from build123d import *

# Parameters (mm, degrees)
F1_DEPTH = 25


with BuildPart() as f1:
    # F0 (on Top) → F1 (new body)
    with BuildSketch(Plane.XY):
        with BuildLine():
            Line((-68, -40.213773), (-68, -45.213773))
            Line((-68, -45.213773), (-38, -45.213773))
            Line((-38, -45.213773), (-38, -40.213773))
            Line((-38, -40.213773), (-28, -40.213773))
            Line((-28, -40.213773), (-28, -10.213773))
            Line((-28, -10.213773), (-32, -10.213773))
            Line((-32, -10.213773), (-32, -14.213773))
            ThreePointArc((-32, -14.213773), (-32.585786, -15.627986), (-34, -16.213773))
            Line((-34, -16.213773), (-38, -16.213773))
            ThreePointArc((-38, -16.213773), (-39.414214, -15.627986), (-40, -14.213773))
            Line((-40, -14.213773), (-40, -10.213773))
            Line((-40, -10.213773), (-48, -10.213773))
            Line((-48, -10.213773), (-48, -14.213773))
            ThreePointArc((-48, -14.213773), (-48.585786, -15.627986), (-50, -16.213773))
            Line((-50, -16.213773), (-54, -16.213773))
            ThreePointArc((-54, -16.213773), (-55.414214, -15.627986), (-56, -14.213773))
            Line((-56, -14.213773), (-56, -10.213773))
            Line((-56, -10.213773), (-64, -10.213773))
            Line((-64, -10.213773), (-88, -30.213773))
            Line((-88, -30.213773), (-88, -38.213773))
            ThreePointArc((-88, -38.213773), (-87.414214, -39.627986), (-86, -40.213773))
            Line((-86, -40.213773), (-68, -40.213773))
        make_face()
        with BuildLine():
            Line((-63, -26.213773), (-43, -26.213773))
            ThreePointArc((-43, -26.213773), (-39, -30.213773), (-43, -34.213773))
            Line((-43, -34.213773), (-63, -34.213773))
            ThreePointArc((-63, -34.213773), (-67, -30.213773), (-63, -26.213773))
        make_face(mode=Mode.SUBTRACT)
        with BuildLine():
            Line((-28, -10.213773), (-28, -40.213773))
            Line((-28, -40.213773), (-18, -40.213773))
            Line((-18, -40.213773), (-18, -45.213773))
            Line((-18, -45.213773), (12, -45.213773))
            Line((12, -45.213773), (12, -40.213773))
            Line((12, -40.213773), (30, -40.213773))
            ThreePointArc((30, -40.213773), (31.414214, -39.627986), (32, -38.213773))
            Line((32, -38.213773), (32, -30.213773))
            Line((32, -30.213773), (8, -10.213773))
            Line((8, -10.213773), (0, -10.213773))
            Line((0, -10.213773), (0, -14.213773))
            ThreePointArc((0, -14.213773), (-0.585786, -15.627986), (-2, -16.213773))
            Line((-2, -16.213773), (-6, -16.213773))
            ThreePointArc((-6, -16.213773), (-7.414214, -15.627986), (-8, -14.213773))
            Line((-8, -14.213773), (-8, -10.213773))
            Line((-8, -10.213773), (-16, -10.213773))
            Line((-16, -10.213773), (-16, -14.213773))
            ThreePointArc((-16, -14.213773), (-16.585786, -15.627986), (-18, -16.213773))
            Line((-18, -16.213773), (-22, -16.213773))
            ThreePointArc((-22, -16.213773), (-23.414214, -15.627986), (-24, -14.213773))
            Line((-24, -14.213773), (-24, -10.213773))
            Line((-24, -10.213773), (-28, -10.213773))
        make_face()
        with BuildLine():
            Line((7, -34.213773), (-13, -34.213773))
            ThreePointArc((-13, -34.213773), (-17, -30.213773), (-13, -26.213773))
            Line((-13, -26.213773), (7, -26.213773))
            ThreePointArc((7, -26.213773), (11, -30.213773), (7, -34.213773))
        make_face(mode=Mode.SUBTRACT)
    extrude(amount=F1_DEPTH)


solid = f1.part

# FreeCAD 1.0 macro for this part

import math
import FreeCAD as App
import Part
import Sketcher
from FreeCAD import Vector

doc = App.newDocument("Part")
body = doc.addObject("PartDesign::Body", "Body")

sketch1 = body.newObject("Sketcher::SketchObject", "Sketch")
sketch1.AttachmentSupport = (doc.getObject("XY_Plane"), [""])
sketch1.MapMode = "FlatFace"
sketch1.addGeometry(Part.LineSegment(Vector(-68, -40.2, 0), Vector(-68, -45.2, 0)), False)
sketch1.addGeometry(Part.LineSegment(Vector(-68, -45.2, 0), Vector(-38, -45.2, 0)), False)
sketch1.addGeometry(Part.LineSegment(Vector(-38, -45.2, 0), Vector(-38, -40.2, 0)), False)
sketch1.addGeometry(Part.LineSegment(Vector(-38, -40.2, 0), Vector(-18, -40.2, 0)), False)
sketch1.addGeometry(Part.LineSegment(Vector(-18, -40.2, 0), Vector(-18, -45.2, 0)), False)
sketch1.addGeometry(Part.LineSegment(Vector(-18, -45.2, 0), Vector(12, -45.2, 0)), False)
sketch1.addGeometry(Part.LineSegment(Vector(12, -45.2, 0), Vector(12, -40.2, 0)), False)
sketch1.addGeometry(Part.LineSegment(Vector(12, -40.2, 0), Vector(30, -40.2, 0)), False)
sketch1.addGeometry(Part.ArcOfCircle(Part.Circle(Vector(30, -38.2, 0), Vector(0, 0, 1), 2), math.radians(-90), math.radians(0)), False)
sketch1.addGeometry(Part.LineSegment(Vector(32, -38.2, 0), Vector(32, -30.2, 0)), False)
sketch1.addGeometry(Part.LineSegment(Vector(32, -30.2, 0), Vector(8, -10.2, 0)), False)
sketch1.addGeometry(Part.LineSegment(Vector(8, -10.2, 0), Vector(0, -10.2, 0)), False)
sketch1.addGeometry(Part.LineSegment(Vector(0, -10.2, 0), Vector(0, -14.2, 0)), False)
sketch1.addGeometry(Part.ArcOfCircle(Part.Circle(Vector(-2, -14.2, 0), Vector(0, 0, 1), 2), math.radians(-90), math.radians(0)), False)
sketch1.addGeometry(Part.LineSegment(Vector(-2, -16.2, 0), Vector(-6, -16.2, 0)), False)
sketch1.addGeometry(Part.ArcOfCircle(Part.Circle(Vector(-6, -14.2, 0), Vector(0, 0, 1), 2), math.radians(-180), math.radians(-90)), False)
sketch1.addGeometry(Part.LineSegment(Vector(-8, -14.2, 0), Vector(-8, -10.2, 0)), False)
sketch1.addGeometry(Part.LineSegment(Vector(-8, -10.2, 0), Vector(-16, -10.2, 0)), False)
sketch1.addGeometry(Part.LineSegment(Vector(-16, -10.2, 0), Vector(-16, -14.2, 0)), False)
sketch1.addGeometry(Part.ArcOfCircle(Part.Circle(Vector(-18, -14.2, 0), Vector(0, 0, 1), 2), math.radians(-90), math.radians(0)), False)
sketch1.addGeometry(Part.LineSegment(Vector(-18, -16.2, 0), Vector(-22, -16.2, 0)), False)
sketch1.addGeometry(Part.ArcOfCircle(Part.Circle(Vector(-22, -14.2, 0), Vector(0, 0, 1), 2), math.radians(-180), math.radians(-90)), False)
sketch1.addGeometry(Part.LineSegment(Vector(-24, -14.2, 0), Vector(-24, -10.2, 0)), False)
sketch1.addGeometry(Part.LineSegment(Vector(-24, -10.2, 0), Vector(-32, -10.2, 0)), False)
sketch1.addGeometry(Part.LineSegment(Vector(-32, -10.2, 0), Vector(-32, -14.2, 0)), False)
sketch1.addGeometry(Part.ArcOfCircle(Part.Circle(Vector(-34, -14.2, 0), Vector(0, 0, 1), 2), math.radians(-90), math.radians(0)), False)
sketch1.addGeometry(Part.LineSegment(Vector(-34, -16.2, 0), Vector(-38, -16.2, 0)), False)
sketch1.addGeometry(Part.ArcOfCircle(Part.Circle(Vector(-38, -14.2, 0), Vector(0, 0, 1), 2), math.radians(-180), math.radians(-90)), False)
sketch1.addGeometry(Part.LineSegment(Vector(-40, -14.2, 0), Vector(-40, -10.2, 0)), False)
sketch1.addGeometry(Part.LineSegment(Vector(-40, -10.2, 0), Vector(-48, -10.2, 0)), False)
sketch1.addGeometry(Part.LineSegment(Vector(-48, -10.2, 0), Vector(-48, -14.2, 0)), False)
sketch1.addGeometry(Part.ArcOfCircle(Part.Circle(Vector(-50, -14.2, 0), Vector(0, 0, 1), 2), math.radians(-90), math.radians(0)), False)
sketch1.addGeometry(Part.LineSegment(Vector(-50, -16.2, 0), Vector(-54, -16.2, 0)), False)
sketch1.addGeometry(Part.ArcOfCircle(Part.Circle(Vector(-54, -14.2, 0), Vector(0, 0, 1), 2), math.radians(-180), math.radians(-90)), False)
sketch1.addGeometry(Part.LineSegment(Vector(-56, -14.2, 0), Vector(-56, -10.2, 0)), False)
sketch1.addGeometry(Part.LineSegment(Vector(-56, -10.2, 0), Vector(-64, -10.2, 0)), False)
sketch1.addGeometry(Part.LineSegment(Vector(-64, -10.2, 0), Vector(-88, -30.2, 0)), False)
sketch1.addGeometry(Part.LineSegment(Vector(-88, -30.2, 0), Vector(-88, -38.2, 0)), False)
sketch1.addGeometry(Part.ArcOfCircle(Part.Circle(Vector(-86, -38.2, 0), Vector(0, 0, 1), 2), math.radians(-180), math.radians(-90)), False)
sketch1.addGeometry(Part.LineSegment(Vector(-86, -40.2, 0), Vector(-68, -40.2, 0)), False)
sketch1.addGeometry(Part.ArcOfCircle(Part.Circle(Vector(-63, -30.2, 0), Vector(0, 0, 1), 4), math.radians(90), math.radians(270)), False)
sketch1.addGeometry(Part.LineSegment(Vector(-63, -26.2, 0), Vector(-43, -26.2, 0)), False)
sketch1.addGeometry(Part.ArcOfCircle(Part.Circle(Vector(-43, -30.2, 0), Vector(0, 0, 1), 4), math.radians(-90), math.radians(90)), False)
sketch1.addGeometry(Part.LineSegment(Vector(-43, -34.2, 0), Vector(-63, -34.2, 0)), False)
sketch1.addGeometry(Part.ArcOfCircle(Part.Circle(Vector(7, -30.2, 0), Vector(0, 0, 1), 4), math.radians(-90), math.radians(90)), False)
sketch1.addGeometry(Part.LineSegment(Vector(7, -34.2, 0), Vector(-13, -34.2, 0)), False)
sketch1.addGeometry(Part.ArcOfCircle(Part.Circle(Vector(-13, -30.2, 0), Vector(0, 0, 1), 4), math.radians(90), math.radians(270)), False)
sketch1.addGeometry(Part.LineSegment(Vector(-13, -26.2, 0), Vector(7, -26.2, 0)), False)
sketch1.addConstraint(Sketcher.Constraint("Coincident", 0, 2, 1, 1))
sketch1.addConstraint(Sketcher.Constraint("Coincident", 1, 2, 2, 1))
sketch1.addConstraint(Sketcher.Constraint("Coincident", 2, 2, 3, 1))
sketch1.addConstraint(Sketcher.Constraint("Coincident", 3, 2, 4, 1))
sketch1.addConstraint(Sketcher.Constraint("Coincident", 4, 2, 5, 1))
sketch1.addConstraint(Sketcher.Constraint("Coincident", 5, 2, 6, 1))
sketch1.addConstraint(Sketcher.Constraint("Coincident", 6, 2, 7, 1))
sketch1.addConstraint(Sketcher.Constraint("Tangent", 7, 2, 8, 1))
sketch1.addConstraint(Sketcher.Constraint("Tangent", 8, 2, 9, 1))
sketch1.addConstraint(Sketcher.Constraint("Coincident", 9, 2, 10, 1))
sketch1.addConstraint(Sketcher.Constraint("Coincident", 10, 2, 11, 1))
sketch1.addConstraint(Sketcher.Constraint("Coincident", 11, 2, 12, 1))
sketch1.addConstraint(Sketcher.Constraint("Tangent", 12, 2, 13, 2))
sketch1.addConstraint(Sketcher.Constraint("Tangent", 13, 1, 14, 1))
sketch1.addConstraint(Sketcher.Constraint("Tangent", 14, 2, 15, 2))
sketch1.addConstraint(Sketcher.Constraint("Tangent", 15, 1, 16, 1))
sketch1.addConstraint(Sketcher.Constraint("Coincident", 16, 2, 17, 1))
sketch1.addConstraint(Sketcher.Constraint("Coincident", 17, 2, 18, 1))
sketch1.addConstraint(Sketcher.Constraint("Tangent", 18, 2, 19, 2))
sketch1.addConstraint(Sketcher.Constraint("Tangent", 19, 1, 20, 1))
sketch1.addConstraint(Sketcher.Constraint("Tangent", 20, 2, 21, 2))
sketch1.addConstraint(Sketcher.Constraint("Tangent", 21, 1, 22, 1))
sketch1.addConstraint(Sketcher.Constraint("Coincident", 22, 2, 23, 1))
sketch1.addConstraint(Sketcher.Constraint("Coincident", 23, 2, 24, 1))
sketch1.addConstraint(Sketcher.Constraint("Tangent", 24, 2, 25, 2))
sketch1.addConstraint(Sketcher.Constraint("Tangent", 25, 1, 26, 1))
sketch1.addConstraint(Sketcher.Constraint("Tangent", 26, 2, 27, 2))
sketch1.addConstraint(Sketcher.Constraint("Tangent", 27, 1, 28, 1))
sketch1.addConstraint(Sketcher.Constraint("Coincident", 28, 2, 29, 1))
sketch1.addConstraint(Sketcher.Constraint("Coincident", 29, 2, 30, 1))
sketch1.addConstraint(Sketcher.Constraint("Tangent", 30, 2, 31, 2))
sketch1.addConstraint(Sketcher.Constraint("Tangent", 31, 1, 32, 1))
sketch1.addConstraint(Sketcher.Constraint("Tangent", 32, 2, 33, 2))
sketch1.addConstraint(Sketcher.Constraint("Tangent", 33, 1, 34, 1))
sketch1.addConstraint(Sketcher.Constraint("Coincident", 34, 2, 35, 1))
sketch1.addConstraint(Sketcher.Constraint("Coincident", 35, 2, 36, 1))
sketch1.addConstraint(Sketcher.Constraint("Coincident", 36, 2, 37, 1))
sketch1.addConstraint(Sketcher.Constraint("Tangent", 37, 2, 38, 1))
sketch1.addConstraint(Sketcher.Constraint("Tangent", 38, 2, 39, 1))
sketch1.addConstraint(Sketcher.Constraint("Coincident", 39, 2, 0, 1))
sketch1.addConstraint(Sketcher.Constraint("Tangent", 40, 1, 41, 1))
sketch1.addConstraint(Sketcher.Constraint("Tangent", 41, 2, 42, 2))
sketch1.addConstraint(Sketcher.Constraint("Tangent", 42, 1, 43, 1))
sketch1.addConstraint(Sketcher.Constraint("Tangent", 43, 2, 40, 2))
sketch1.addConstraint(Sketcher.Constraint("Tangent", 44, 1, 45, 1))
sketch1.addConstraint(Sketcher.Constraint("Tangent", 45, 2, 46, 2))
sketch1.addConstraint(Sketcher.Constraint("Tangent", 46, 1, 47, 1))
sketch1.addConstraint(Sketcher.Constraint("Tangent", 47, 2, 44, 2))
sketch1.addConstraint(Sketcher.Constraint("Vertical", 0))
sketch1.addConstraint(Sketcher.Constraint("Horizontal", 1))
sketch1.addConstraint(Sketcher.Constraint("Vertical", 2))
sketch1.addConstraint(Sketcher.Constraint("Horizontal", 3))
sketch1.addConstraint(Sketcher.Constraint("Vertical", 4))
sketch1.addConstraint(Sketcher.Constraint("Horizontal", 5))
sketch1.addConstraint(Sketcher.Constraint("Vertical", 6))
sketch1.addConstraint(Sketcher.Constraint("Horizontal", 7))
sketch1.addConstraint(Sketcher.Constraint("Vertical", 9))
sketch1.addConstraint(Sketcher.Constraint("Horizontal", 11))
sketch1.addConstraint(Sketcher.Constraint("Vertical", 12))
sketch1.addConstraint(Sketcher.Constraint("Horizontal", 14))
sketch1.addConstraint(Sketcher.Constraint("Vertical", 16))
sketch1.addConstraint(Sketcher.Constraint("Horizontal", 17))
sketch1.addConstraint(Sketcher.Constraint("Vertical", 18))
sketch1.addConstraint(Sketcher.Constraint("Horizontal", 20))
sketch1.addConstraint(Sketcher.Constraint("Vertical", 22))
sketch1.addConstraint(Sketcher.Constraint("Horizontal", 23))
sketch1.addConstraint(Sketcher.Constraint("Vertical", 24))
sketch1.addConstraint(Sketcher.Constraint("Horizontal", 26))
sketch1.addConstraint(Sketcher.Constraint("Vertical", 28))
sketch1.addConstraint(Sketcher.Constraint("Horizontal", 29))
sketch1.addConstraint(Sketcher.Constraint("Vertical", 30))
sketch1.addConstraint(Sketcher.Constraint("Horizontal", 32))
sketch1.addConstraint(Sketcher.Constraint("Vertical", 34))
sketch1.addConstraint(Sketcher.Constraint("Horizontal", 35))
sketch1.addConstraint(Sketcher.Constraint("Vertical", 37))
sketch1.addConstraint(Sketcher.Constraint("Horizontal", 39))
sketch1.addConstraint(Sketcher.Constraint("Horizontal", 41))
sketch1.addConstraint(Sketcher.Constraint("Horizontal", 43))
sketch1.addConstraint(Sketcher.Constraint("Horizontal", 45))
sketch1.addConstraint(Sketcher.Constraint("Horizontal", 47))
sketch1.addConstraint(Sketcher.Constraint("Equal", 8, 13))
sketch1.addConstraint(Sketcher.Constraint("Equal", 13, 15))
sketch1.addConstraint(Sketcher.Constraint("Equal", 15, 19))
sketch1.addConstraint(Sketcher.Constraint("Equal", 19, 21))
sketch1.addConstraint(Sketcher.Constraint("Equal", 21, 25))
sketch1.addConstraint(Sketcher.Constraint("Equal", 25, 27))
sketch1.addConstraint(Sketcher.Constraint("Equal", 27, 31))
sketch1.addConstraint(Sketcher.Constraint("Equal", 31, 33))
sketch1.addConstraint(Sketcher.Constraint("Equal", 33, 38))
sketch1.addConstraint(Sketcher.Constraint("Equal", 42, 44))
sketch1.addConstraint(Sketcher.Constraint("Symmetric", 10, 2, 16, 2, -2))
sketch1.addConstraint(Sketcher.Constraint("PointOnObject", 11, 2, -2))
sketch1.addConstraint(Sketcher.Constraint("Horizontal", 15, 3, 19, 3))
sketch1.addConstraint(Sketcher.Constraint("Horizontal", 21, 3, 25, 3))
sketch1.addConstraint(Sketcher.Constraint("Horizontal", 27, 3, 31, 3))
sketch1.addConstraint(Sketcher.Constraint("Horizontal", 8, 3, 38, 3))
sketch1.addConstraint(Sketcher.Constraint("Horizontal", 42, 3, 44, 3))
sketch1.addConstraint(Sketcher.Constraint("Horizontal", 1, 2, 4, 2))
sketch1.addConstraint(Sketcher.Constraint("Horizontal", 3, 2, 6, 2))
sketch1.addConstraint(Sketcher.Constraint("Horizontal", 46, 3, 9, 2))
sketch1.addConstraint(Sketcher.Constraint("Horizontal", 17, 2, 22, 2))
sketch1.addConstraint(Sketcher.Constraint("Horizontal", 23, 2, 28, 2))
sketch1.addConstraint(Sketcher.Constraint("Horizontal", 29, 2, 34, 2))
sketch1.addConstraint(Sketcher.Constraint("Horizontal", 9, 2, 36, 2))
sketch1.addConstraint(Sketcher.Constraint("Vertical", 27, 3, 1, 2))
sketch1.addConstraint(Sketcher.Constraint("Vertical", 19, 3, 3, 2))
sketch1.addConstraint(Sketcher.Constraint("Equal", 1, 5))
sketch1.addConstraint(Sketcher.Constraint("Equal", 11, 17))
sketch1.addConstraint(Sketcher.Constraint("Equal", 14, 20))
sketch1.addConstraint(Sketcher.Constraint("Equal", 17, 23))
sketch1.addConstraint(Sketcher.Constraint("Equal", 20, 26))
sketch1.addConstraint(Sketcher.Constraint("Equal", 23, 29))
sketch1.addConstraint(Sketcher.Constraint("Equal", 26, 32))
sketch1.addConstraint(Sketcher.Constraint("Equal", 29, 35))
sketch1.addConstraint(Sketcher.Constraint("Equal", 7, 39))
sketch1.addConstraint(Sketcher.Constraint("Equal", 3, 41))
sketch1.addConstraint(Sketcher.Constraint("Equal", 43, 45))
sketch1.addConstraint(Sketcher.Constraint("Equal", 35, 9))
sketch1.addConstraint(Sketcher.Constraint("Equal", 32, 12))
sketch1.addConstraint(Sketcher.Constraint("Radius", 8, 2.0))
sketch1.addConstraint(Sketcher.Constraint("Radius", 40, 4.0))
sketch1.addConstraint(Sketcher.Constraint("DistanceX", 1, 1, 1, 2, 30.0))
sketch1.addConstraint(Sketcher.Constraint("DistanceX", 3, 1, 3, 2, 20.0))
sketch1.addConstraint(Sketcher.Constraint("DistanceX", 7, 1, 7, 2, 18.0))
sketch1.addConstraint(Sketcher.Constraint("DistanceY", 0, 2, 0, 1, 5.0))
sketch1.addConstraint(Sketcher.Constraint("DistanceX", 40, 3, -1, 1, 63.0))
sketch1.addConstraint(Sketcher.Constraint("DistanceX", -1, 1, 44, 3, 7.0))
sketch1.addConstraint(Sketcher.Constraint("Distance", 10, 31.240999))
sketch1.addConstraint(Sketcher.Constraint("DistanceY", 8, 3, -1, 1, 38.213773))
pad1 = body.newObject("PartDesign::Pad", "Pad")
pad1.Profile = sketch1
pad1.Length = 25

doc.recompute()
